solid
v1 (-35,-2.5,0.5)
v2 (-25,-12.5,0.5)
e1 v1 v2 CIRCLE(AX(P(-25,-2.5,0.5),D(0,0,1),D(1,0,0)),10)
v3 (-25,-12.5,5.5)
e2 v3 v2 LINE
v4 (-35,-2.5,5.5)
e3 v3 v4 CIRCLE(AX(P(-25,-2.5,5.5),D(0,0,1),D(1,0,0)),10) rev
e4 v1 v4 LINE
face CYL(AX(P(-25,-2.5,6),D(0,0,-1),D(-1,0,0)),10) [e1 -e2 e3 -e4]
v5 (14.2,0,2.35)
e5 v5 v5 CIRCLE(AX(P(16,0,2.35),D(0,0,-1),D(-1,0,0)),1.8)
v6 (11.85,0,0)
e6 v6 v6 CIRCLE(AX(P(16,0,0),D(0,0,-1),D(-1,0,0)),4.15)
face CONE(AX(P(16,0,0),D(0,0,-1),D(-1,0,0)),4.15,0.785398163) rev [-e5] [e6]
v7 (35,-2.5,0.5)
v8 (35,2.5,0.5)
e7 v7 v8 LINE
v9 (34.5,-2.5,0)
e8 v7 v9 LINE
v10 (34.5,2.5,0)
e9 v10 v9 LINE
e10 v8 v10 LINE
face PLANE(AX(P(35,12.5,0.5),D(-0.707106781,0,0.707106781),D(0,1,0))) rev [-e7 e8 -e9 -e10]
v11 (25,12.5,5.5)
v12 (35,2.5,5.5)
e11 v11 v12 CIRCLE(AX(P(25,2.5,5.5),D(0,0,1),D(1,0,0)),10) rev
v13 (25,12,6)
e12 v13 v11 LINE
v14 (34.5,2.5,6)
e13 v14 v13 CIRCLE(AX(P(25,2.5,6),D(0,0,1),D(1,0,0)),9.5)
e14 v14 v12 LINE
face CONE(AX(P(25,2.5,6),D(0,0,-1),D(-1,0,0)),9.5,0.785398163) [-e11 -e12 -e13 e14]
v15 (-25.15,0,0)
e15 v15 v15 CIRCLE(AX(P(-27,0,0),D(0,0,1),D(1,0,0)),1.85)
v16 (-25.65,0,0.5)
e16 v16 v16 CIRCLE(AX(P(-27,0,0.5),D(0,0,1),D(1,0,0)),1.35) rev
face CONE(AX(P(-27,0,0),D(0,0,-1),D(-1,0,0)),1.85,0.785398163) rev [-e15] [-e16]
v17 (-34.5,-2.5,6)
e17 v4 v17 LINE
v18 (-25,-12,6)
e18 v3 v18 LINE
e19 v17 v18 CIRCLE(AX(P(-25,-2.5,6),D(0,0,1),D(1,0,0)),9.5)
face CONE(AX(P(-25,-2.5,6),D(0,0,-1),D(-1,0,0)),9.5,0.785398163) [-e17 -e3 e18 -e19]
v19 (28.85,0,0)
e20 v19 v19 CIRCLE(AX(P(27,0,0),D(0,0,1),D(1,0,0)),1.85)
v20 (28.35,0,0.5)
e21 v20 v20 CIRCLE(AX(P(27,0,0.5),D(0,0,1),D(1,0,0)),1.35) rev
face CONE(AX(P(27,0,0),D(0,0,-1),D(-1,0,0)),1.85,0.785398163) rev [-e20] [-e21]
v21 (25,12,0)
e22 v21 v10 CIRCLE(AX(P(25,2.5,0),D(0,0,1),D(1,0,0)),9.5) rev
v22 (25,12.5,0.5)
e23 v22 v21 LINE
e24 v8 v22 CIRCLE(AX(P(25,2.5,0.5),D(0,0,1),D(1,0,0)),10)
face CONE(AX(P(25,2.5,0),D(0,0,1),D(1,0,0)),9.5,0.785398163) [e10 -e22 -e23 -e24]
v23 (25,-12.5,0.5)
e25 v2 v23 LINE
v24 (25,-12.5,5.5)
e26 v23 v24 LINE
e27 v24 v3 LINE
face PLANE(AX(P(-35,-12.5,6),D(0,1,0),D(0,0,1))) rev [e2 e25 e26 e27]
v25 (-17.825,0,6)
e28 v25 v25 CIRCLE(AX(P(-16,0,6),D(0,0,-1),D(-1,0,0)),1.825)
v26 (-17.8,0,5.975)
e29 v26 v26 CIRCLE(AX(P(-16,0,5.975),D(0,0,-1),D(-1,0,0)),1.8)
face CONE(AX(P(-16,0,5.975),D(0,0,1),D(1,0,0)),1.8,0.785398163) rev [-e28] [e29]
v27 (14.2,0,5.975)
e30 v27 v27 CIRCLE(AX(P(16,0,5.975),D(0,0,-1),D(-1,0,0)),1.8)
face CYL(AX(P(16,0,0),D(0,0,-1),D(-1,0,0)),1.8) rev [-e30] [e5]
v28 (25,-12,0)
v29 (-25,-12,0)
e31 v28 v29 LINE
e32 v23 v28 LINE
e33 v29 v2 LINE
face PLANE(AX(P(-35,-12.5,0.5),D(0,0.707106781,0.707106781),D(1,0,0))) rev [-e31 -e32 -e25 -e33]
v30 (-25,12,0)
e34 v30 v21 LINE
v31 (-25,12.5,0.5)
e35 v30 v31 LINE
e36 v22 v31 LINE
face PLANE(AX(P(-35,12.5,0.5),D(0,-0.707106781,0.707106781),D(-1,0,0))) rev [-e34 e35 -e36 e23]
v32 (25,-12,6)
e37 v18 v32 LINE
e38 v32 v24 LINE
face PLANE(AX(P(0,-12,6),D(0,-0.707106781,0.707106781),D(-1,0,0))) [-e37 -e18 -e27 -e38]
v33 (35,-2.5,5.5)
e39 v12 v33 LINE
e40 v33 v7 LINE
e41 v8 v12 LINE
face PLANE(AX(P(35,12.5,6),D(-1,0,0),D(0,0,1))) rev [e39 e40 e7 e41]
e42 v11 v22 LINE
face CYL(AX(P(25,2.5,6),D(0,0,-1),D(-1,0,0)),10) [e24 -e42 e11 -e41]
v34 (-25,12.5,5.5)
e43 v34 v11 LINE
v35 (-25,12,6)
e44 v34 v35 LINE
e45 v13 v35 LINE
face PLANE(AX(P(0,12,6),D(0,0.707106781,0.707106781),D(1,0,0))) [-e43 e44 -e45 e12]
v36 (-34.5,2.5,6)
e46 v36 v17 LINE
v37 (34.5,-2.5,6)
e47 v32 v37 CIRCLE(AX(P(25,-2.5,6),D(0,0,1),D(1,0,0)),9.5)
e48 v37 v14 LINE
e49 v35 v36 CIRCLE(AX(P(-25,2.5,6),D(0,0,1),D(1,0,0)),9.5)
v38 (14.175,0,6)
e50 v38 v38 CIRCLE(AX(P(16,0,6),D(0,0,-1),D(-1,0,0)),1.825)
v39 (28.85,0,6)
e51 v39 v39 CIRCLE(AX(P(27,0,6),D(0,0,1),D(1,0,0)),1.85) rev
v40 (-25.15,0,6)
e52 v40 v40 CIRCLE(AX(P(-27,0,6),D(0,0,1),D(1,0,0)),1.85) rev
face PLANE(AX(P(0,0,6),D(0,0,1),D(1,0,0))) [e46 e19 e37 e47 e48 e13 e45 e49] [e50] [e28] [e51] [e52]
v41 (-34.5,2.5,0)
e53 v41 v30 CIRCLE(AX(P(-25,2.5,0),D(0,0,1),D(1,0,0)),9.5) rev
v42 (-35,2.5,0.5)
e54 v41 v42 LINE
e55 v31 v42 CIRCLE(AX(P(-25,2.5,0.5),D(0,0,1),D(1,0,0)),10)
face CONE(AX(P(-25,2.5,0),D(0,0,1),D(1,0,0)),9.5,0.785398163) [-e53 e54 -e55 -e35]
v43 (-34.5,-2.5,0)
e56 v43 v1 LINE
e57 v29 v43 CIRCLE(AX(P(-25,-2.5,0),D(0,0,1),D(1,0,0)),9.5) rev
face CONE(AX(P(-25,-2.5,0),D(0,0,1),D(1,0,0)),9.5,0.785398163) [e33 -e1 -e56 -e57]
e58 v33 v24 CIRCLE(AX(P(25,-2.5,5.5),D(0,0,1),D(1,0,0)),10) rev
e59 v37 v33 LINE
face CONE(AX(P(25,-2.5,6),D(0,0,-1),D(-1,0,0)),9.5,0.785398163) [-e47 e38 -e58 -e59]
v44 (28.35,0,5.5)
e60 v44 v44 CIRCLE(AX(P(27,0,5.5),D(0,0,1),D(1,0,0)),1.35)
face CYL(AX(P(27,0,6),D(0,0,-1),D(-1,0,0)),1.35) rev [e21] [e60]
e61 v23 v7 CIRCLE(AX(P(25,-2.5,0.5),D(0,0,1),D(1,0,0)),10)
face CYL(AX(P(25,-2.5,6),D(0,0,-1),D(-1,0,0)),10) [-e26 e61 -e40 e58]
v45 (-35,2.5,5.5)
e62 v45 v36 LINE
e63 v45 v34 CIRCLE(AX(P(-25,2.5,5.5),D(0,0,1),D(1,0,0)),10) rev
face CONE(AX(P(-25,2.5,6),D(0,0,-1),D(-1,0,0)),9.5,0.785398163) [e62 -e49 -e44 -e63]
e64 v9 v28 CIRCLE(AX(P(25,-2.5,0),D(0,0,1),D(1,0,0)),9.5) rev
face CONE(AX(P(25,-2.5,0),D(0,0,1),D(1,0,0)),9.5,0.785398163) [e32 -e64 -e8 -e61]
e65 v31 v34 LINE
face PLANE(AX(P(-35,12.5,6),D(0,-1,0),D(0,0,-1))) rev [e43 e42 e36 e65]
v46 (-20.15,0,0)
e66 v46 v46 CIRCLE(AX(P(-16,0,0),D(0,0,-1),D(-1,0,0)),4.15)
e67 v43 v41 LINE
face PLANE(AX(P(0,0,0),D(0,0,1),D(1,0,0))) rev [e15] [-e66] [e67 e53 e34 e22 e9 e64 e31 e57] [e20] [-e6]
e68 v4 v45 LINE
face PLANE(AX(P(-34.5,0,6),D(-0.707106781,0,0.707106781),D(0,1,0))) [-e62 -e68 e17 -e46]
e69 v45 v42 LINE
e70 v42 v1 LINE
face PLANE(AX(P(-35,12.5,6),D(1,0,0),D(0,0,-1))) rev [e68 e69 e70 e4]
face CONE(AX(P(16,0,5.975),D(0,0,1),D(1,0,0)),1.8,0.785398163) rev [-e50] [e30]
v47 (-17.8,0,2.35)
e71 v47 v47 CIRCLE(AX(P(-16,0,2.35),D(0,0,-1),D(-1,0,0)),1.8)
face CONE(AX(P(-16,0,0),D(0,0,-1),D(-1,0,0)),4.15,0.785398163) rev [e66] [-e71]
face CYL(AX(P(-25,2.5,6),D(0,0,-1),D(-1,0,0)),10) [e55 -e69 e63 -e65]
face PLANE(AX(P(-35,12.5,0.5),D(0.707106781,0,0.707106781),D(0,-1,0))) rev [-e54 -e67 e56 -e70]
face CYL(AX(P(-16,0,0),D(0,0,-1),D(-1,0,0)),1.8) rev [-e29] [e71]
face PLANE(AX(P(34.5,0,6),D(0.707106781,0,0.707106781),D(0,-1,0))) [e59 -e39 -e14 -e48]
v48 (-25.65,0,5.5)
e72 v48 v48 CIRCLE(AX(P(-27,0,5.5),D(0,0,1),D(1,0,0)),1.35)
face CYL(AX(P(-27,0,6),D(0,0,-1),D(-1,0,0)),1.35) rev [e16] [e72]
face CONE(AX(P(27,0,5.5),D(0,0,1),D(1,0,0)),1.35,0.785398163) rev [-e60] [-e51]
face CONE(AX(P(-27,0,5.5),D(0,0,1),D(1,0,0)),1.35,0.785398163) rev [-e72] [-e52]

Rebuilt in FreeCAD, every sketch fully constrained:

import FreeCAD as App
import Part
import Sketcher
Q = App.Units.Quantity


def edges_at(feature, points):
    """Names of the edges that pass closest to the given points."""
    edges = feature.Shape.Edges
    near = lambda p: min(range(len(edges)), key=lambda i: edges[i].distToShape(Part.Vertex(*p))[0])
    return sorted({f"Edge{near(p) + 1}" for p in points})


def add_polygon(sketch, points):
    """Adds a closed chain of lines whose ends are joined by coincident constraints."""
    first, n = sketch.GeometryCount, len(points)
    for a, b in zip(points, points[1:] + points[:1]):
        sketch.addGeometry(Part.LineSegment(App.Vector(*a, 0), App.Vector(*b, 0)), False)
    for i in range(n):
        sketch.addConstraint(Sketcher.Constraint("Coincident", first + i, 2, first + (i + 1) % n, 1))

doc = App.newDocument("Part")
body = doc.addObject("PartDesign::Body", "Body")

# Sketch on XY plane
sketch1 = body.newObject("Sketcher::SketchObject", "Sketch")
sketch1.AttachmentSupport = (doc.getObject("XY_Plane"), [""])
sketch1.MapMode = "FlatFace"
add_polygon(sketch1, [(-35, 12.5), (-35, -12.5), (35, -12.5), (35, 12.5)])  # lines 0-3
sketch1.addGeometry(Part.Circle(App.Vector(-27, 0, 0), App.Vector(0, 0, 1), 1.4), False)  # 4
sketch1.addGeometry(Part.Circle(App.Vector(-16, 0, 0), App.Vector(0, 0, 1), 1.4), False)  # 5
sketch1.addGeometry(Part.Circle(App.Vector(16, 0, 0), App.Vector(0, 0, 1), 1.4), False)  # 6
sketch1.addGeometry(Part.Circle(App.Vector(27, 0, 0), App.Vector(0, 0, 1), 1.4), False)  # 7
sketch1.addConstraint([
    Sketcher.Constraint("Vertical", 0),
    Sketcher.Constraint("Horizontal", 1),
    Sketcher.Constraint("Vertical", 2),
    Sketcher.Constraint("Horizontal", 3),
    Sketcher.Constraint("Equal", 4, 5),
    Sketcher.Constraint("Equal", 5, 6),
    Sketcher.Constraint("Equal", 6, 7),
    Sketcher.Constraint("Symmetric", 5, 3, 6, 3, -1, 1),
    Sketcher.Constraint("Symmetric", 4, 3, 7, 3, -1, 1),
    Sketcher.Constraint("Symmetric", 0, 2, 2, 2, -1, 1),
    Sketcher.Constraint("PointOnObject", 4, 3, -1),
    Sketcher.Constraint("PointOnObject", 5, 3, -1),
    Sketcher.Constraint("Diameter", 4, Q("2.7 mm")),
    Sketcher.Constraint("DistanceX", 1, 1, 1, 2, Q("70 mm")),
    Sketcher.Constraint("DistanceY", 0, 2, 0, 1, Q("25 mm")),
    Sketcher.Constraint("DistanceX", 4, 3, -1, 1, Q("27 mm")),
    Sketcher.Constraint("DistanceX", 5, 3, -1, 1, Q("16 mm")),
])
pad1 = body.newObject("PartDesign::Pad", "Pad")
pad1.Profile = sketch1
pad1.Length = 6
doc.recompute()

chamfer = body.newObject("PartDesign::Chamfer", "Chamfer")
chamfer.Base = (pad1, edges_at(pad1, [
    (-28.35, 0, 0),
    (-28.35, 0, 6),
    (25.65, 0, 0),
    (25.65, 0, 6),
]))
chamfer.Size = 0.5
doc.recompute()

fillet = body.newObject("PartDesign::Fillet", "Fillet")
fillet.Base = (chamfer, edges_at(chamfer, [
    (35, -12.5, 3),
    (-35, -12.5, 3),
    (-35, 12.5, 3),
    (35, 12.5, 3),
]))
fillet.Radius = 10
doc.recompute()

chamfer2 = body.newObject("PartDesign::Chamfer", "Chamfer001")
chamfer2.Base = (fillet, edges_at(fillet, [
    (-35, 0, 0),
    (-35, 0, 6),
    (35, 0, 0),
    (0, -12.5, 0),
    (0, 12.5, 0),
    (32.071, -9.571, 0),
    (-32.071, -9.571, 0),
    (32.071, 9.571, 0),
    (-32.071, 9.571, 0),
    (0, 12.5, 6),
    (35, 0, 6),
    (0, -12.5, 6),
    (32.071, -9.571, 6),
    (-32.071, -9.571, 6),
    (32.071, 9.571, 6),
    (-32.071, 9.571, 6),
]))
chamfer2.Size = 0.5

# Sketch on YZ plane
sketch2 = body.newObject("Sketcher::SketchObject", "Sketch001")
sketch2.AttachmentSupport = (doc.getObject("YZ_Plane"), [""])
sketch2.MapMode = "FlatFace"
sketch2.AttachmentOffset = App.Placement(App.Vector(0, 0, -16), App.Rotation())
add_polygon(sketch2, [(0, 6), (0, 0), (4.15, 0), (1.8, 2.35), (1.8, 5.975), (1.825, 6)])  # lines 0-5
sketch2.addConstraint([
    Sketcher.Constraint("Vertical", 0),
    Sketcher.Constraint("Horizontal", 1),
    Sketcher.Constraint("Vertical", 3),
    Sketcher.Constraint("Horizontal", 5),
    Sketcher.Constraint("Coincident", 0, 2, -1, 1),
    Sketcher.Constraint("Perpendicular", 2, 4),
    Sketcher.Constraint("DistanceY", 0, 2, 0, 1, Q("6 mm")),
    Sketcher.Constraint("Angle", 2, Q("135 deg")),
    Sketcher.Constraint("DistanceX", 1, 1, 1, 2, Q("4.15 mm")),
    Sketcher.Constraint("DistanceX", -1, 1, 2, 2, Q("1.8 mm")),
    Sketcher.Constraint("DistanceX", 5, 2, 5, 1, Q("1.825 mm")),
])
groove = body.newObject("PartDesign::Groove", "Groove")
groove.Profile = sketch2
groove.ReferenceAxis = (sketch2, ["V_Axis"])
groove.Angle = 360
doc.recompute()

linearpattern = body.newObject("PartDesign::LinearPattern", "LinearPattern")
linearpattern.Originals = [groove]
linearpattern.Direction = (doc.getObject("X_Axis"), [""])
linearpattern.Mode = "offset"
linearpattern.Offset = 32
linearpattern.Occurrences = 2
body.Tip = linearpattern

doc.recompute()
